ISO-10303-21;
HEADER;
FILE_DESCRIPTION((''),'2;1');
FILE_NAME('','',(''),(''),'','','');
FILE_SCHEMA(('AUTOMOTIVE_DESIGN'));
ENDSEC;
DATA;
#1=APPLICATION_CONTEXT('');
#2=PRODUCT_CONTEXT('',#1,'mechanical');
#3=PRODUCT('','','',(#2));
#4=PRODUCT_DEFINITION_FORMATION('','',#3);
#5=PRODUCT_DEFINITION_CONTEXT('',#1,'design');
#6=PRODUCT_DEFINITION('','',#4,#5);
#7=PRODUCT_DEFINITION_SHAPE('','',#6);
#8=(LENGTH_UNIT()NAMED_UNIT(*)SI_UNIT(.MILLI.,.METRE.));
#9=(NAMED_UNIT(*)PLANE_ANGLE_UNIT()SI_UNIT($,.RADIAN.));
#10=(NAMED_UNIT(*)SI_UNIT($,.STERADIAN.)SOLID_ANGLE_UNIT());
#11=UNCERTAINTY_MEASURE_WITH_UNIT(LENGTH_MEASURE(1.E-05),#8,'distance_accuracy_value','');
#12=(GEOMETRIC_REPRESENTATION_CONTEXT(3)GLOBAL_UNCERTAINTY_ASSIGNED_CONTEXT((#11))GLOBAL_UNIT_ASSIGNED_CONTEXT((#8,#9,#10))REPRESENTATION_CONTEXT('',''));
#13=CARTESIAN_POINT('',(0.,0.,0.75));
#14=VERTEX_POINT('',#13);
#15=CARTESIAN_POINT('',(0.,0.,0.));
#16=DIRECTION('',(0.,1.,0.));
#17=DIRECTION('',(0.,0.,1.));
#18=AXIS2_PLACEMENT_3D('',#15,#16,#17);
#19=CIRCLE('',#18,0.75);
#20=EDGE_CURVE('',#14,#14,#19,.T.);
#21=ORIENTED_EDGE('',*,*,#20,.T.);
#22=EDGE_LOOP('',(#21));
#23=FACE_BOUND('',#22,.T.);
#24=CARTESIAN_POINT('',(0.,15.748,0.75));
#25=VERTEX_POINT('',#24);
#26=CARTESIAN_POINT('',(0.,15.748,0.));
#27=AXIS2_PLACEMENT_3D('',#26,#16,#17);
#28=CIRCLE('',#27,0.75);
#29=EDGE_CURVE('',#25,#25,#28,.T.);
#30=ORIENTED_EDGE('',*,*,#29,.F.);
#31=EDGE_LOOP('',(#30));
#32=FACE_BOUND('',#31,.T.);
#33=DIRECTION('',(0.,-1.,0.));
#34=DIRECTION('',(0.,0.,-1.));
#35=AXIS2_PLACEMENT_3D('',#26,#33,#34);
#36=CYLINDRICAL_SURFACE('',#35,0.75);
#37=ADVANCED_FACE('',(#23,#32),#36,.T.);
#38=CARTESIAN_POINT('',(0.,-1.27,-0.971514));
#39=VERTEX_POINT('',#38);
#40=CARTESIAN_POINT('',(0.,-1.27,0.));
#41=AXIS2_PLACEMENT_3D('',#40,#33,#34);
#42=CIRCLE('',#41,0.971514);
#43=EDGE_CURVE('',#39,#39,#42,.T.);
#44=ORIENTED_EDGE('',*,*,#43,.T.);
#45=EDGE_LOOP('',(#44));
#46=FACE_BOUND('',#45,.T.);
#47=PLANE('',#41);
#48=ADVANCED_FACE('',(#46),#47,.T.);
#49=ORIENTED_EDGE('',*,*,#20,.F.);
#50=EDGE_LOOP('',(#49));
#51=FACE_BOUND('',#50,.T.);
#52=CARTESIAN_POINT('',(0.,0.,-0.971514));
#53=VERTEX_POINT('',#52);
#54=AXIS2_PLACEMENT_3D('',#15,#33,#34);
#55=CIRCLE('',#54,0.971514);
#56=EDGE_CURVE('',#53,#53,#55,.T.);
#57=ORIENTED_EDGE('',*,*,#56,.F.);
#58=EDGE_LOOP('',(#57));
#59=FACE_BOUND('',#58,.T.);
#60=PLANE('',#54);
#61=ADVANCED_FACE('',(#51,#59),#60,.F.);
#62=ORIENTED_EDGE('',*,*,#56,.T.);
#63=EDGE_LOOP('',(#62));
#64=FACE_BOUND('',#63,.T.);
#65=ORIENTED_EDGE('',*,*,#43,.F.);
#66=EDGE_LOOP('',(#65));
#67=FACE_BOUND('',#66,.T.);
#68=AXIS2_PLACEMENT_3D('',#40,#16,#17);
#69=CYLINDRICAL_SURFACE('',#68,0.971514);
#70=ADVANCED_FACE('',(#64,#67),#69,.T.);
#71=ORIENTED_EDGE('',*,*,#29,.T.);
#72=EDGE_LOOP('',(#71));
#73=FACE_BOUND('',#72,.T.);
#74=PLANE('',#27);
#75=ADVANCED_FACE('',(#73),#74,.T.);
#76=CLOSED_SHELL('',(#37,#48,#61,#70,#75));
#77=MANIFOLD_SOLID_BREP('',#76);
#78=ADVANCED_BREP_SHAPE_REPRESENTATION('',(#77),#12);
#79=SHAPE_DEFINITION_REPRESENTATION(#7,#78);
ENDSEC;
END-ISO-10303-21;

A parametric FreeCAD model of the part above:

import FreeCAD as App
import Part
import Sketcher

doc = App.newDocument("Part")
params = doc.addObject("Spreadsheet::Sheet", "Params")
for row, (alias, value) in enumerate([
    ("pad1_length", "0.62 in"),
    ("pad2_length", "0.05 in"),
], start=1):
    params.set(f"A{row}", alias)
    params.set(f"B{row}", "=" + value)
    params.setAlias(f"B{row}", alias)

body = doc.addObject("PartDesign::Body", "Body")

# Sketch on XZ plane
sketch1 = doc.addObject("Sketcher::SketchObject", "Sketch")
body.addObject(sketch1)
sketch1.AttachmentSupport = (doc.XZ_Plane, [""])
sketch1.MapMode = "FlatFace"
sketch1.addGeometry(Part.Circle(App.Vector(0, 0, 0), App.Vector(0, 0, 1), 0.8), False)
sketch1.addConstraint([
    Sketcher.Constraint("Coincident", 0, 3, -1, 1),
    Sketcher.Constraint("Diameter", 0, 1.5),
])
pad1 = doc.addObject("PartDesign::Pad", "Pad")
body.addObject(pad1)
pad1.Profile = sketch1
pad1.setExpression("Length", "Params.pad1_length")
pad1.Reversed = True

# Sketch on XZ plane
sketch2 = doc.addObject("Sketcher::SketchObject", "Sketch001")
body.addObject(sketch2)
sketch2.AttachmentSupport = (doc.XZ_Plane, [""])
sketch2.MapMode = "FlatFace"
sketch2.addGeometry(Part.Circle(App.Vector(0, 0, 0), App.Vector(0, 0, 1), 1), False)
sketch2.addConstraint([
    Sketcher.Constraint("Coincident", 0, 3, -1, 1),
    Sketcher.Constraint("Diameter", 0, 1.943028),
])
pad2 = doc.addObject("PartDesign::Pad", "Pad001")
body.addObject(pad2)
pad2.Profile = sketch2
pad2.setExpression("Length", "Params.pad2_length")

doc.recompute()
